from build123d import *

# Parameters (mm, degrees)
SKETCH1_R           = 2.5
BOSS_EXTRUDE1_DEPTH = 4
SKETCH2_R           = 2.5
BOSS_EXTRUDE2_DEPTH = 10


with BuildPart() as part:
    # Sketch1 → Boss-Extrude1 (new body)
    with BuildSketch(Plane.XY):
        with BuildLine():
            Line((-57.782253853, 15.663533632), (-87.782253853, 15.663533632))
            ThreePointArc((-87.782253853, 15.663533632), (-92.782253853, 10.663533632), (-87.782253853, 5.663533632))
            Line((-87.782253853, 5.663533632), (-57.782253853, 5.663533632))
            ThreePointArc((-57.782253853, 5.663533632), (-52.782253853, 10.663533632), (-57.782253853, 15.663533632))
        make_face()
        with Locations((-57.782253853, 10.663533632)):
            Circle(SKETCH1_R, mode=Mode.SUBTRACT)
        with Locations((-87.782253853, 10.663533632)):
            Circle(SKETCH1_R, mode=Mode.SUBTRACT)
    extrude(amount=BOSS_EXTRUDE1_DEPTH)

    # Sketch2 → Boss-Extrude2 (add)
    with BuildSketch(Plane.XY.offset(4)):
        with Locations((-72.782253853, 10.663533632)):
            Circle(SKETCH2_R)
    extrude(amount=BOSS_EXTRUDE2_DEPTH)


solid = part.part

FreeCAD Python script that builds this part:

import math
import FreeCAD as App
import Part
import Sketcher

doc = App.newDocument("Part")
body = doc.addObject("PartDesign::Body", "Body")

sketch1 = body.newObject("Sketcher::SketchObject", "Sketch")
sketch1.AttachmentSupport = (doc.getObject("XY_Plane"), [""])
sketch1.MapMode = "FlatFace"
sketch1.addGeometry([
    Part.LineSegment(App.Vector(-57.8, 15.7, 0), App.Vector(-87.8, 15.7, 0)),
    Part.ArcOfCircle(Part.Circle(App.Vector(-87.8, 10.7, 0), App.Vector(0, 0, 1), 5), math.radians(90), math.radians(270)),
    Part.LineSegment(App.Vector(-87.8, 5.7, 0), App.Vector(-57.8, 5.7, 0)),
    Part.ArcOfCircle(Part.Circle(App.Vector(-57.8, 10.7, 0), App.Vector(0, 0, 1), 5), math.radians(-90), math.radians(90)),
    Part.Circle(App.Vector(-87.8, 10.7, 0), App.Vector(0, 0, 1), 2.5),
    Part.Circle(App.Vector(-57.8, 10.7, 0), App.Vector(0, 0, 1), 2.5),
], False)
sketch1.addConstraint([
    Sketcher.Constraint("Tangent", 0, 2, 1, 1),
    Sketcher.Constraint("Tangent", 1, 2, 2, 1),
    Sketcher.Constraint("Tangent", 2, 2, 3, 1),
    Sketcher.Constraint("Tangent", 3, 2, 0, 1),
    Sketcher.Constraint("Horizontal", 0),
    Sketcher.Constraint("Horizontal", 2),
    Sketcher.Constraint("Coincident", 4, 3, 1, 3),
    Sketcher.Constraint("Coincident", 5, 3, 3, 3),
    Sketcher.Constraint("Equal", 4, 5),
    Sketcher.Constraint("Diameter", 4, 5.0),
    Sketcher.Constraint("Radius", 1, 5.0),
    Sketcher.Constraint("DistanceX", 0, 2, 0, 1, 30.0),
    Sketcher.Constraint("DistanceX", 1, 3, -1, 1, 87.782254),
    Sketcher.Constraint("DistanceY", -1, 1, 1, 3, 10.663534),
])
pad1 = body.newObject("PartDesign::Pad", "Pad")
pad1.Profile = sketch1
pad1.Length = 4

sketch2 = body.newObject("Sketcher::SketchObject", "Sketch001")
sketch2.AttachmentSupport = (doc.getObject("XY_Plane"), [""])
sketch2.MapMode = "FlatFace"
sketch2.AttachmentOffset = App.Placement(App.Vector(0, 0, 4), App.Rotation())
sketch2.addGeometry(Part.Circle(App.Vector(-72.8, 10.7, 0), App.Vector(0, 0, 1), 2.5), False)
sketch2.addConstraint([
    Sketcher.Constraint("Diameter", 0, 5.0),
    Sketcher.Constraint("DistanceX", 0, 3, -1, 1, 72.782254),
    Sketcher.Constraint("DistanceY", -1, 1, 0, 3, 10.663534),
])
pad2 = body.newObject("PartDesign::Pad", "Pad001")
pad2.Profile = sketch2
pad2.Length = 10

doc.recompute()
